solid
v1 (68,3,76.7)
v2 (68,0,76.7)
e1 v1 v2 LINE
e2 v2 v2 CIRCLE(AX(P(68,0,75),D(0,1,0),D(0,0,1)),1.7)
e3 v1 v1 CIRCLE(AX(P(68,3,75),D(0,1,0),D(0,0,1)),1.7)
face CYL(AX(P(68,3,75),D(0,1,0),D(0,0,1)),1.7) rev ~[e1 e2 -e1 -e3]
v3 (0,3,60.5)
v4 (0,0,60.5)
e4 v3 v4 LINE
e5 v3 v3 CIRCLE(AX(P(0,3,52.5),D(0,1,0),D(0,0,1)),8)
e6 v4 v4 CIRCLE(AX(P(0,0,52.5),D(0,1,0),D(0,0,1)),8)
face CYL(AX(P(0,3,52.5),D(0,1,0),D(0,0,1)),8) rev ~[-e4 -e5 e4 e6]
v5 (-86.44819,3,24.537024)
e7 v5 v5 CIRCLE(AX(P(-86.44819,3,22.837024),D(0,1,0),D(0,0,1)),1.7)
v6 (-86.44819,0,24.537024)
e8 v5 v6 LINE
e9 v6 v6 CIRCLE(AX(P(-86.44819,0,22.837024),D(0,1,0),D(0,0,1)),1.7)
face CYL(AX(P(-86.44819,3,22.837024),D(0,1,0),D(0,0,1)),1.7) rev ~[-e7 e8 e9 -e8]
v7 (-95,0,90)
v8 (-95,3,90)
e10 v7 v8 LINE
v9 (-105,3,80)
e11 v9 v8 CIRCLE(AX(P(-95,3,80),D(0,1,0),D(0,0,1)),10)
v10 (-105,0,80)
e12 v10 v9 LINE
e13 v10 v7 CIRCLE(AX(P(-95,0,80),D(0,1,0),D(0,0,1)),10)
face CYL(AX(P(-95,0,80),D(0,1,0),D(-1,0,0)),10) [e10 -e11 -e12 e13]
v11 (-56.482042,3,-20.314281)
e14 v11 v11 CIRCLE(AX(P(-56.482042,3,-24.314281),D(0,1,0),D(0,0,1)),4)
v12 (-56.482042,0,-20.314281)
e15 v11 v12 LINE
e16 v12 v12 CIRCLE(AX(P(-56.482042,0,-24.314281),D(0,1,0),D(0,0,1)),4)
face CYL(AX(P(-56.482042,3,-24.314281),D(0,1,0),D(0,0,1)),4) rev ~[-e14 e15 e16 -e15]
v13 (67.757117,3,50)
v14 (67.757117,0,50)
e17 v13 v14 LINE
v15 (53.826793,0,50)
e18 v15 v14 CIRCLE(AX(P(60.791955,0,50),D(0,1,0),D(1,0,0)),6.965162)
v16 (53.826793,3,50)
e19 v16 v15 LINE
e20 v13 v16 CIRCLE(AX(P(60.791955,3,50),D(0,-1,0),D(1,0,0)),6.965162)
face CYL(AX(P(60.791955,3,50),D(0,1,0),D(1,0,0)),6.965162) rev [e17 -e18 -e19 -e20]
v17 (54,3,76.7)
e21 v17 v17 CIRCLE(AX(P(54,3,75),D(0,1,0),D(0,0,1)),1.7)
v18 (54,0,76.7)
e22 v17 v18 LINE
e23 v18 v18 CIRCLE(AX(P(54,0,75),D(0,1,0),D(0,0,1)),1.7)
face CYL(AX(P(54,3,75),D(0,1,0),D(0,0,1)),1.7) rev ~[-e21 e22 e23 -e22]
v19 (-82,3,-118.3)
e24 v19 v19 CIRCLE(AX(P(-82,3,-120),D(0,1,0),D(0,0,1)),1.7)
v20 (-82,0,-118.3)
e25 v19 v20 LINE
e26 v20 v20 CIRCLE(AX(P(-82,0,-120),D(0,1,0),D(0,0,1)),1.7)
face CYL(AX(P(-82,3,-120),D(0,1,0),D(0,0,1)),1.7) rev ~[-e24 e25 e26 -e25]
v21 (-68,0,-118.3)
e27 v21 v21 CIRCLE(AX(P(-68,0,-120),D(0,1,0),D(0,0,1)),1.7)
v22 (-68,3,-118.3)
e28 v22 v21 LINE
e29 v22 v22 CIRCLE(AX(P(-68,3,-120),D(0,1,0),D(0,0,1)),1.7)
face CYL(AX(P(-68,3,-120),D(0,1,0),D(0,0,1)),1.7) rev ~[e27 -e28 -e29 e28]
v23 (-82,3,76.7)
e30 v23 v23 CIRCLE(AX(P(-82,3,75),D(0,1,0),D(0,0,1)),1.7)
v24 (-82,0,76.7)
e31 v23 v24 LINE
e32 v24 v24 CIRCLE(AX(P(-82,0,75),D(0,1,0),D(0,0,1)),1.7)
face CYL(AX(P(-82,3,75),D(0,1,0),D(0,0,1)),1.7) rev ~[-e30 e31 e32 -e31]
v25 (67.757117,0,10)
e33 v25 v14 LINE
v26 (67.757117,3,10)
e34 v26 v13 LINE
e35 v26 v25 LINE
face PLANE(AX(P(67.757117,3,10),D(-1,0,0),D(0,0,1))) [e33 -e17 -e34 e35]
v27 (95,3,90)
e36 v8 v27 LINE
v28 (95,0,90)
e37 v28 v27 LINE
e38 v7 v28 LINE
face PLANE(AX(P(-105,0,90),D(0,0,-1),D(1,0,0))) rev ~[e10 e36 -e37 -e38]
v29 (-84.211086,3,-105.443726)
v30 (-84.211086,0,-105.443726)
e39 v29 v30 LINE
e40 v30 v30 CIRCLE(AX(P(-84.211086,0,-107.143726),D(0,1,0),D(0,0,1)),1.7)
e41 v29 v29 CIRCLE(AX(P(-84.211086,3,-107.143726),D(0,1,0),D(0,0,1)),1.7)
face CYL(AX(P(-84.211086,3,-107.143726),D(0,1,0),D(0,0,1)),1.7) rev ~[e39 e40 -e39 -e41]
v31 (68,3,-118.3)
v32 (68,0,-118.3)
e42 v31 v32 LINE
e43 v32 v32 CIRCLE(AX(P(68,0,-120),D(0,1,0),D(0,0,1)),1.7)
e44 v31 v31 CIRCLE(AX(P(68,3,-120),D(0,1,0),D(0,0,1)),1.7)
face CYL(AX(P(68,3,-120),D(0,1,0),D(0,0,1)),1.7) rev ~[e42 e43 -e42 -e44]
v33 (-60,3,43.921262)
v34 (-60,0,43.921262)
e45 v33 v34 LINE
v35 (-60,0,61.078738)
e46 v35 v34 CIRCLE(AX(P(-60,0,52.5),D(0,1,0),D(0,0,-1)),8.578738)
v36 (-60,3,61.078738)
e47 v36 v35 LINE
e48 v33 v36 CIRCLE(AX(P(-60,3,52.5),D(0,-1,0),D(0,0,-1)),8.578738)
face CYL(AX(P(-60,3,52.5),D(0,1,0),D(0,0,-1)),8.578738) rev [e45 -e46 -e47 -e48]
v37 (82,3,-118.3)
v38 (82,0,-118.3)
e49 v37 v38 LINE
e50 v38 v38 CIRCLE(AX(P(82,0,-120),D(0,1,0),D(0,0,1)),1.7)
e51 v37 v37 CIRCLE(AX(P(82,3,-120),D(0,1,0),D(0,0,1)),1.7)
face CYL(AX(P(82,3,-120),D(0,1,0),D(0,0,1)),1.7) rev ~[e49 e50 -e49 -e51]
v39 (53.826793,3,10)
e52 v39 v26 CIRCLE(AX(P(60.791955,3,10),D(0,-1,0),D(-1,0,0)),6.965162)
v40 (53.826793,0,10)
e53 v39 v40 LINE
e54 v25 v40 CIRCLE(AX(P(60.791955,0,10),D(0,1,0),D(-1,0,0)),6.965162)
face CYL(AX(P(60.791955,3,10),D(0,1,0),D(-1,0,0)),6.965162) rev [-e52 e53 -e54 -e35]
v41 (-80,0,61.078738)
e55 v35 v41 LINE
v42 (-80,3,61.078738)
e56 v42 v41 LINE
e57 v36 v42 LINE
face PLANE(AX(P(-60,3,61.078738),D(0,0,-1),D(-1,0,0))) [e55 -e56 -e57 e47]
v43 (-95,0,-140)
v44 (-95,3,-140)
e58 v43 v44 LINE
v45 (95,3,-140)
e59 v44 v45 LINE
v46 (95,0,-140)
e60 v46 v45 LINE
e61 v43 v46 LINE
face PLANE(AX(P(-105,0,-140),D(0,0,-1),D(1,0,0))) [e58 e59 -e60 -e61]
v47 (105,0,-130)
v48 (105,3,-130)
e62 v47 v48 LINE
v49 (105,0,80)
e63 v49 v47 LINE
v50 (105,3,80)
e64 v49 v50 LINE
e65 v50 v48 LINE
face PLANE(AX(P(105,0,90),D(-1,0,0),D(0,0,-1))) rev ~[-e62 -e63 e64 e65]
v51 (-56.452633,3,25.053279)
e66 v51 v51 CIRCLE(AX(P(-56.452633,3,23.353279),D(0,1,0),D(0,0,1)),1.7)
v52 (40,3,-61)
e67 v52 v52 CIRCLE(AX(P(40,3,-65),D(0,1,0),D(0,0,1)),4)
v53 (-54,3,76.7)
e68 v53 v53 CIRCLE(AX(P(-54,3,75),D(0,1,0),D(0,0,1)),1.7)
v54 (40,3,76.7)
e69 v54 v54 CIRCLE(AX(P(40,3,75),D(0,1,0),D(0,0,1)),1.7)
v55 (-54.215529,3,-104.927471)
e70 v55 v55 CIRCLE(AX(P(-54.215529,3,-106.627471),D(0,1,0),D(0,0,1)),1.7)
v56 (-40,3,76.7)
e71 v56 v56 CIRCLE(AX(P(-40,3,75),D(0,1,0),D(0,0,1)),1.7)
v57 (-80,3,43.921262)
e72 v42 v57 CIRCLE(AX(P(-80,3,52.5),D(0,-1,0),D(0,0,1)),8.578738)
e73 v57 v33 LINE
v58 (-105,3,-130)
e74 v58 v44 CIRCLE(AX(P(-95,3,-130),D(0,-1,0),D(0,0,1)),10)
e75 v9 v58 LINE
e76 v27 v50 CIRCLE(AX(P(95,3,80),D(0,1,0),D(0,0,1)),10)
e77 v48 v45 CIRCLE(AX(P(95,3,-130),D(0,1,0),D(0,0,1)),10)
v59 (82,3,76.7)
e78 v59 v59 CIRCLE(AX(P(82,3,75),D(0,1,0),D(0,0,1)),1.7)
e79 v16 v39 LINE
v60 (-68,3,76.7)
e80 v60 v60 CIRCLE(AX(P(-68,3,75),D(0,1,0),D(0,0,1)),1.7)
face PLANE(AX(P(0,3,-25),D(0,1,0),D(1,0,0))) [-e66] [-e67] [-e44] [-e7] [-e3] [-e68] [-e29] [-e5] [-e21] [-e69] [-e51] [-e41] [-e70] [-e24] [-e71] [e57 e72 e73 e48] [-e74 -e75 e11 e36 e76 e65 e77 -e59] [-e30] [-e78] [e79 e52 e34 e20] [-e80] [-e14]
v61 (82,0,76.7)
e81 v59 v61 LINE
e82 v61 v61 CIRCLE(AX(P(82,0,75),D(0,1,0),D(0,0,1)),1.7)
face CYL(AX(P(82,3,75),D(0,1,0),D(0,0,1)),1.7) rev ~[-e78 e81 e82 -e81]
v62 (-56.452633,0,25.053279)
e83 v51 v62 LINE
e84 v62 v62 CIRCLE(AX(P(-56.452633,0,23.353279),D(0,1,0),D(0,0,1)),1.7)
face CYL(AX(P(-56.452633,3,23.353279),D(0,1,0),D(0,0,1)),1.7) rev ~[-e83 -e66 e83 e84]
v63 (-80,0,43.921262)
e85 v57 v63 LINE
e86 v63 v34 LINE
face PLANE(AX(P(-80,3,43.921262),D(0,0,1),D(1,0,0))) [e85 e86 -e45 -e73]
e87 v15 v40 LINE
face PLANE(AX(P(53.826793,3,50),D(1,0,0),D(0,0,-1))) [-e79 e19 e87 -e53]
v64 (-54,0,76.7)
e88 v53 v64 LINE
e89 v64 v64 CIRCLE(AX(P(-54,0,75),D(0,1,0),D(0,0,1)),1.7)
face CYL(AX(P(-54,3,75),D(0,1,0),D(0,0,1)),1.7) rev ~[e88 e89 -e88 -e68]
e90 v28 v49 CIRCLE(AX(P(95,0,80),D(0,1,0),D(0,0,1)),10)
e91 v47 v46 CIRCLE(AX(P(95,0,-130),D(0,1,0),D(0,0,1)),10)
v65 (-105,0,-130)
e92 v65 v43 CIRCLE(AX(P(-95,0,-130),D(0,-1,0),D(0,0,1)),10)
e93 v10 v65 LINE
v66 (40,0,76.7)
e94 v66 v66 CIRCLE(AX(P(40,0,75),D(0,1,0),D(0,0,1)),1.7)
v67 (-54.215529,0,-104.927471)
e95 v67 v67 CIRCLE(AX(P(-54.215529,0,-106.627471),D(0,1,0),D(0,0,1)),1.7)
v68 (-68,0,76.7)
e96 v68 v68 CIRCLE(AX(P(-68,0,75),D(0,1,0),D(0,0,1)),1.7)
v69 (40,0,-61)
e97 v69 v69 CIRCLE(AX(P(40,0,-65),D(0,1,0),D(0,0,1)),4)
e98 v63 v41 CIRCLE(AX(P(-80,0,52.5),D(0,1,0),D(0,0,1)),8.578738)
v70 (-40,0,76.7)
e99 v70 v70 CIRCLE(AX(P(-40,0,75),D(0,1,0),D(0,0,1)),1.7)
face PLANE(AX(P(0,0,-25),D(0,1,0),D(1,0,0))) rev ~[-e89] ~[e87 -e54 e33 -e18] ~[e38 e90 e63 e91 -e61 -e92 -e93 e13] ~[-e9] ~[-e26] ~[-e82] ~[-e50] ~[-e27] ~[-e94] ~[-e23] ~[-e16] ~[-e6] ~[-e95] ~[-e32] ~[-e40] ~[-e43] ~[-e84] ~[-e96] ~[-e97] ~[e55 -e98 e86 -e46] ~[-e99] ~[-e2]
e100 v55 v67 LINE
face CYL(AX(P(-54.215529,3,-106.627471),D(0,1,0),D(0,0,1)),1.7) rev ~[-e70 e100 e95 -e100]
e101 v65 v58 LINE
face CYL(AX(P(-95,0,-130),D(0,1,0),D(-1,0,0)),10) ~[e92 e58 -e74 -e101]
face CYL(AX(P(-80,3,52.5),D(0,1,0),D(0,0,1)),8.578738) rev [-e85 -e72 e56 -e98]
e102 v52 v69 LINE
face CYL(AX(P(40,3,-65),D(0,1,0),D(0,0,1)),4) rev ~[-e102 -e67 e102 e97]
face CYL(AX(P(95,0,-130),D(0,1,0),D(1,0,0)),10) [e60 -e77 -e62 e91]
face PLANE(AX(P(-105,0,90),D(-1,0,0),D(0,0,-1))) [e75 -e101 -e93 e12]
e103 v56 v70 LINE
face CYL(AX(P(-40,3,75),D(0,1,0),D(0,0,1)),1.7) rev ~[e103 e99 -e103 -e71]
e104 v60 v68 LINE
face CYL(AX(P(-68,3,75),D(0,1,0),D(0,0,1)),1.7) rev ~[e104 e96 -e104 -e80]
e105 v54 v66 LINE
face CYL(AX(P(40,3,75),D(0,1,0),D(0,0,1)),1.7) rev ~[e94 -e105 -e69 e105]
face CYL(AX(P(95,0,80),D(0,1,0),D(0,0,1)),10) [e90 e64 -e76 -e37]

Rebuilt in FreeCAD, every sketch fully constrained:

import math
import FreeCAD as App
import Part
import Sketcher

V = App.Vector
Q = App.Units.Quantity


def edges_at(feature, points):
    """Names of the edges that pass closest to the given points."""
    edges = feature.Shape.Edges
    near = lambda p: min(range(len(edges)), key=lambda i: edges[i].distToShape(Part.Vertex(*p))[0])
    return sorted({f"Edge{near(p) + 1}" for p in points})

doc = App.newDocument("Part")
body = doc.addObject("PartDesign::Body", "Body")

sketch1 = body.newObject("Sketcher::SketchObject", "Sketch")
sketch1.AttachmentSupport = (doc.getObject("XZ_Plane"), [""])
sketch1.MapMode = "FlatFace"
sketch1.addGeometry([
    Part.LineSegment(V(-105, -140, 0), V(-105, 90, 0)),
    Part.LineSegment(V(-105, 90, 0), V(105, 90, 0)),
    Part.LineSegment(V(105, 90, 0), V(105, -140, 0)),
    Part.LineSegment(V(105, -140, 0), V(-105, -140, 0)),
], False)
sketch1.addConstraint([
    Sketcher.Constraint("Coincident", 0, 2, 1, 1),
    Sketcher.Constraint("Coincident", 1, 2, 2, 1),
    Sketcher.Constraint("Coincident", 2, 2, 3, 1),
    Sketcher.Constraint("Coincident", 3, 2, 0, 1),
    Sketcher.Constraint("Vertical", 0),
    Sketcher.Constraint("Horizontal", 1),
    Sketcher.Constraint("Vertical", 2),
    Sketcher.Constraint("Horizontal", 3),
    Sketcher.Constraint("DistanceX", 1, 1, 1, 2, Q("210 mm")),
    Sketcher.Constraint("DistanceY", 0, 1, 0, 2, Q("230 mm")),
    Sketcher.Constraint("DistanceX", 0, 2, -1, 1, Q("105 mm")),
    Sketcher.Constraint("DistanceY", -1, 1, 0, 2, Q("90 mm")),
])
pad1 = body.newObject("PartDesign::Pad", "Pad")
pad1.Profile = sketch1
pad1.Length = 3
pad1.Reversed = True
doc.recompute()

fillet = body.newObject("PartDesign::Fillet", "Fillet")
fillet.Base = (pad1, edges_at(pad1, [
    (105, 1.5, 90),
    (-105, 1.5, 90),
    (-105, 1.5, -140),
    (105, 1.5, -140),
]))
fillet.Radius = 10

sketch2 = body.newObject("Sketcher::SketchObject", "Sketch001")
sketch2.AttachmentSupport = (doc.getObject("XZ_Plane"), [""])
sketch2.MapMode = "FlatFace"
sketch2.AttachmentOffset = App.Placement(V(0, 0, -3), App.Rotation())
sketch2.addGeometry([
    Part.Circle(V(-82, -120, 0), V(0, 0, 1), 1.7),
    Part.Circle(V(-68, -120, 0), V(0, 0, 1), 1.7),
    Part.Circle(V(68, -120, 0), V(0, 0, 1), 1.7),
    Part.Circle(V(82, -120, 0), V(0, 0, 1), 1.7),
    Part.Circle(V(-82, 75, 0), V(0, 0, 1), 1.7),
    Part.Circle(V(-68, 75, 0), V(0, 0, 1), 1.7),
    Part.Circle(V(68, 75, 0), V(0, 0, 1), 1.7),
    Part.Circle(V(82, 75, 0), V(0, 0, 1), 1.7),
    Part.Circle(V(-54, 75, 0), V(0, 0, 1), 1.7),
    Part.Circle(V(54, 75, 0), V(0, 0, 1), 1.7),
    Part.Circle(V(-40, 75, 0), V(0, 0, 1), 1.7),
    Part.Circle(V(40, 75, 0), V(0, 0, 1), 1.7),
], False)
sketch2.addConstraint([
    Sketcher.Constraint("Equal", 0, 1),
    Sketcher.Constraint("Equal", 1, 2),
    Sketcher.Constraint("Equal", 2, 3),
    Sketcher.Constraint("Equal", 3, 4),
    Sketcher.Constraint("Equal", 4, 5),
    Sketcher.Constraint("Equal", 5, 6),
    Sketcher.Constraint("Equal", 6, 7),
    Sketcher.Constraint("Equal", 7, 8),
    Sketcher.Constraint("Equal", 8, 9),
    Sketcher.Constraint("Equal", 9, 10),
    Sketcher.Constraint("Equal", 10, 11),
    Sketcher.Constraint("Symmetric", 1, 3, 2, 3, -2),
    Sketcher.Constraint("Symmetric", 0, 3, 3, 3, -2),
    Sketcher.Constraint("Symmetric", 5, 3, 6, 3, -2),
    Sketcher.Constraint("Symmetric", 4, 3, 7, 3, -2),
    Sketcher.Constraint("Symmetric", 8, 3, 9, 3, -2),
    Sketcher.Constraint("Symmetric", 10, 3, 11, 3, -2),
    Sketcher.Constraint("Horizontal", 0, 3, 1, 3),
    Sketcher.Constraint("Horizontal", 4, 3, 5, 3),
    Sketcher.Constraint("Horizontal", 7, 3, 8, 3),
    Sketcher.Constraint("Horizontal", 9, 3, 10, 3),
    Sketcher.Constraint("Vertical", 0, 3, 4, 3),
    Sketcher.Constraint("Vertical", 1, 3, 5, 3),
    Sketcher.Constraint("Diameter", 0, Q("3.4 mm")),
    Sketcher.Constraint("DistanceX", 0, 3, -1, 1, Q("82 mm")),
    Sketcher.Constraint("DistanceY", 0, 3, -1, 1, Q("120 mm")),
    Sketcher.Constraint("DistanceX", 1, 3, -1, 1, Q("68 mm")),
    Sketcher.Constraint("DistanceY", -1, 1, 4, 3, Q("75 mm")),
    Sketcher.Constraint("DistanceX", 8, 3, -1, 1, Q("54 mm")),
    Sketcher.Constraint("DistanceX", 10, 3, -1, 1, Q("40 mm")),
])
pocket1 = body.newObject("PartDesign::Pocket", "Pocket")
pocket1.Profile = sketch2
pocket1.Length = 3
pocket1.Reversed = True

sketch3 = body.newObject("Sketcher::SketchObject", "Sketch002")
sketch3.AttachmentSupport = (doc.getObject("XZ_Plane"), [""])
sketch3.MapMode = "FlatFace"
sketch3.AttachmentOffset = App.Placement(V(0, 0, -3), App.Rotation())
sketch3.addGeometry(Part.Circle(V(40, -65, 0), V(0, 0, 1), 4), False)
sketch3.addConstraint([
    Sketcher.Constraint("Diameter", 0, Q("8 mm")),
    Sketcher.Constraint("DistanceX", -1, 1, 0, 3, Q("40 mm")),
    Sketcher.Constraint("DistanceY", 0, 3, -1, 1, Q("65 mm")),
])
pocket2 = body.newObject("PartDesign::Pocket", "Pocket001")
pocket2.Profile = sketch3
pocket2.Type = "ThroughAll"
pocket2.Reversed = True

sketch4 = body.newObject("Sketcher::SketchObject", "Sketch003")
sketch4.AttachmentSupport = (doc.getObject("XZ_Plane"), [""])
sketch4.MapMode = "FlatFace"
sketch4.AttachmentOffset = App.Placement(V(0, 0, -3), App.Rotation())
sketch4.addGeometry(Part.Circle(V(0, 52.5, 0), V(0, 0, 1), 8), False)
sketch4.addConstraint([
    Sketcher.Constraint("PointOnObject", 0, 3, -2),
    Sketcher.Constraint("Diameter", 0, Q("16 mm")),
    Sketcher.Constraint("DistanceY", -1, 1, 0, 3, Q("52.5 mm")),
])
pocket3 = body.newObject("PartDesign::Pocket", "Pocket002")
pocket3.Profile = sketch4
pocket3.Type = "ThroughAll"
pocket3.Reversed = True

sketch5 = body.newObject("Sketcher::SketchObject", "Sketch004")
sketch5.AttachmentSupport = (doc.getObject("XZ_Plane"), [""])
sketch5.MapMode = "FlatFace"
sketch5.AttachmentOffset = App.Placement(V(0, 0, -3), App.Rotation())
sketch5.addGeometry([
    Part.LineSegment(V(67.757117, 50, 0), V(67.757117, 10, 0)),
    Part.ArcOfCircle(Part.Circle(V(60.791955, 10, 0), V(0, 0, 1), 6.965162), math.radians(180), math.radians(360)),
    Part.LineSegment(V(53.826793, 10, 0), V(53.826793, 50, 0)),
    Part.ArcOfCircle(Part.Circle(V(60.791955, 50, 0), V(0, 0, 1), 6.965162), math.radians(0), math.radians(180)),
    Part.LineSegment(V(-60, 43.921262, 0), V(-80, 43.921262, 0)),
    Part.ArcOfCircle(Part.Circle(V(-80, 52.5, 0), V(0, 0, 1), 8.578738), math.radians(90), math.radians(270)),
    Part.LineSegment(V(-80, 61.078738, 0), V(-60, 61.078738, 0)),
    Part.ArcOfCircle(Part.Circle(V(-60, 52.5, 0), V(0, 0, 1), 8.578738), math.radians(-90), math.radians(90)),
], False)
sketch5.addConstraint([
    Sketcher.Constraint("Tangent", 0, 2, 1, 2),
    Sketcher.Constraint("Tangent", 1, 1, 2, 1),
    Sketcher.Constraint("Tangent", 2, 2, 3, 2),
    Sketcher.Constraint("Tangent", 3, 1, 0, 1),
    Sketcher.Constraint("Tangent", 4, 2, 5, 2),
    Sketcher.Constraint("Tangent", 5, 1, 6, 1),
    Sketcher.Constraint("Tangent", 6, 2, 7, 2),
    Sketcher.Constraint("Tangent", 7, 1, 4, 1),
    Sketcher.Constraint("Vertical", 0),
    Sketcher.Constraint("Vertical", 2),
    Sketcher.Constraint("Horizontal", 4),
    Sketcher.Constraint("Horizontal", 6),
    Sketcher.Constraint("DistanceX", 4, 2, 4, 1, Q("20 mm")),
    Sketcher.Constraint("DistanceY", 0, 2, 0, 1, Q("40 mm")),
    Sketcher.Constraint("DistanceY", -1, 1, 1, 3, Q("10 mm")),
    Sketcher.Constraint("DistanceX", 5, 3, -1, 1, Q("80 mm")),
    Sketcher.Constraint("DistanceY", -1, 1, 5, 3, Q("52.5 mm")),
    Sketcher.Constraint("Radius", 1, Q("6.965162 mm")),
    Sketcher.Constraint("Radius", 5, Q("8.578738 mm")),
    Sketcher.Constraint("DistanceX", -1, 1, 1, 3, Q("60.791955 mm")),
])
pocket4 = body.newObject("PartDesign::Pocket", "Pocket003")
pocket4.Profile = sketch5
pocket4.Type = "ThroughAll"
pocket4.Reversed = True

sketch6 = body.newObject("Sketcher::SketchObject", "Sketch005")
sketch6.AttachmentSupport = (doc.getObject("XZ_Plane"), [""])
sketch6.MapMode = "FlatFace"
sketch6.AttachmentOffset = App.Placement(V(0, 0, -3), App.Rotation())
sketch6.addGeometry([
    Part.Circle(V(-56.482042, -24.314281, 0), V(0, 0, 1), 4),
    Part.Circle(V(-84.211086, -107.143726, 0), V(0, 0, 1), 1.7),
    Part.Circle(V(-54.215529, -106.627471, 0), V(0, 0, 1), 1.7),
    Part.Circle(V(-56.452633, 23.353279, 0), V(0, 0, 1), 1.7),
    Part.Circle(V(-86.44819, 22.837024, 0), V(0, 0, 1), 1.7),
], False)
sketch6.addConstraint([
    Sketcher.Constraint("Equal", 1, 2),
    Sketcher.Constraint("Equal", 2, 3),
    Sketcher.Constraint("Equal", 3, 4),
    Sketcher.Constraint("Diameter", 0, Q("8 mm")),
    Sketcher.Constraint("Diameter", 1, Q("3.4 mm")),
    Sketcher.Constraint("DistanceX", 0, 3, -1, 1, Q("56.482042 mm")),
    Sketcher.Constraint("DistanceY", 0, 3, -1, 1, Q("24.314281 mm")),
    Sketcher.Constraint("DistanceX", 2, 3, -1, 1, Q("54.215529 mm")),
    Sketcher.Constraint("DistanceY", 2, 3, -1, 1, Q("106.627471 mm")),
    Sketcher.Constraint("DistanceY", -1, 1, 3, 3, Q("23.353279 mm")),
    Sketcher.Constraint("DistanceX", 4, 3, -1, 1, Q("86.44819 mm")),
    Sketcher.Constraint("DistanceX", 0, 3, 3, 3, Q("0.029409 mm")),
    Sketcher.Constraint("DistanceY", 1, 3, 4, 3, Q("129.98075 mm")),
    Sketcher.Constraint("DistanceX", 1, 3, -1, 1, Q("84.211086 mm")),
    Sketcher.Constraint("DistanceY", 1, 3, -1, 1, Q("107.143726 mm")),
])
pocket5 = body.newObject("PartDesign::Pocket", "Pocket004")
pocket5.Profile = sketch6
pocket5.Type = "ThroughAll"
pocket5.Reversed = True

doc.recompute()
